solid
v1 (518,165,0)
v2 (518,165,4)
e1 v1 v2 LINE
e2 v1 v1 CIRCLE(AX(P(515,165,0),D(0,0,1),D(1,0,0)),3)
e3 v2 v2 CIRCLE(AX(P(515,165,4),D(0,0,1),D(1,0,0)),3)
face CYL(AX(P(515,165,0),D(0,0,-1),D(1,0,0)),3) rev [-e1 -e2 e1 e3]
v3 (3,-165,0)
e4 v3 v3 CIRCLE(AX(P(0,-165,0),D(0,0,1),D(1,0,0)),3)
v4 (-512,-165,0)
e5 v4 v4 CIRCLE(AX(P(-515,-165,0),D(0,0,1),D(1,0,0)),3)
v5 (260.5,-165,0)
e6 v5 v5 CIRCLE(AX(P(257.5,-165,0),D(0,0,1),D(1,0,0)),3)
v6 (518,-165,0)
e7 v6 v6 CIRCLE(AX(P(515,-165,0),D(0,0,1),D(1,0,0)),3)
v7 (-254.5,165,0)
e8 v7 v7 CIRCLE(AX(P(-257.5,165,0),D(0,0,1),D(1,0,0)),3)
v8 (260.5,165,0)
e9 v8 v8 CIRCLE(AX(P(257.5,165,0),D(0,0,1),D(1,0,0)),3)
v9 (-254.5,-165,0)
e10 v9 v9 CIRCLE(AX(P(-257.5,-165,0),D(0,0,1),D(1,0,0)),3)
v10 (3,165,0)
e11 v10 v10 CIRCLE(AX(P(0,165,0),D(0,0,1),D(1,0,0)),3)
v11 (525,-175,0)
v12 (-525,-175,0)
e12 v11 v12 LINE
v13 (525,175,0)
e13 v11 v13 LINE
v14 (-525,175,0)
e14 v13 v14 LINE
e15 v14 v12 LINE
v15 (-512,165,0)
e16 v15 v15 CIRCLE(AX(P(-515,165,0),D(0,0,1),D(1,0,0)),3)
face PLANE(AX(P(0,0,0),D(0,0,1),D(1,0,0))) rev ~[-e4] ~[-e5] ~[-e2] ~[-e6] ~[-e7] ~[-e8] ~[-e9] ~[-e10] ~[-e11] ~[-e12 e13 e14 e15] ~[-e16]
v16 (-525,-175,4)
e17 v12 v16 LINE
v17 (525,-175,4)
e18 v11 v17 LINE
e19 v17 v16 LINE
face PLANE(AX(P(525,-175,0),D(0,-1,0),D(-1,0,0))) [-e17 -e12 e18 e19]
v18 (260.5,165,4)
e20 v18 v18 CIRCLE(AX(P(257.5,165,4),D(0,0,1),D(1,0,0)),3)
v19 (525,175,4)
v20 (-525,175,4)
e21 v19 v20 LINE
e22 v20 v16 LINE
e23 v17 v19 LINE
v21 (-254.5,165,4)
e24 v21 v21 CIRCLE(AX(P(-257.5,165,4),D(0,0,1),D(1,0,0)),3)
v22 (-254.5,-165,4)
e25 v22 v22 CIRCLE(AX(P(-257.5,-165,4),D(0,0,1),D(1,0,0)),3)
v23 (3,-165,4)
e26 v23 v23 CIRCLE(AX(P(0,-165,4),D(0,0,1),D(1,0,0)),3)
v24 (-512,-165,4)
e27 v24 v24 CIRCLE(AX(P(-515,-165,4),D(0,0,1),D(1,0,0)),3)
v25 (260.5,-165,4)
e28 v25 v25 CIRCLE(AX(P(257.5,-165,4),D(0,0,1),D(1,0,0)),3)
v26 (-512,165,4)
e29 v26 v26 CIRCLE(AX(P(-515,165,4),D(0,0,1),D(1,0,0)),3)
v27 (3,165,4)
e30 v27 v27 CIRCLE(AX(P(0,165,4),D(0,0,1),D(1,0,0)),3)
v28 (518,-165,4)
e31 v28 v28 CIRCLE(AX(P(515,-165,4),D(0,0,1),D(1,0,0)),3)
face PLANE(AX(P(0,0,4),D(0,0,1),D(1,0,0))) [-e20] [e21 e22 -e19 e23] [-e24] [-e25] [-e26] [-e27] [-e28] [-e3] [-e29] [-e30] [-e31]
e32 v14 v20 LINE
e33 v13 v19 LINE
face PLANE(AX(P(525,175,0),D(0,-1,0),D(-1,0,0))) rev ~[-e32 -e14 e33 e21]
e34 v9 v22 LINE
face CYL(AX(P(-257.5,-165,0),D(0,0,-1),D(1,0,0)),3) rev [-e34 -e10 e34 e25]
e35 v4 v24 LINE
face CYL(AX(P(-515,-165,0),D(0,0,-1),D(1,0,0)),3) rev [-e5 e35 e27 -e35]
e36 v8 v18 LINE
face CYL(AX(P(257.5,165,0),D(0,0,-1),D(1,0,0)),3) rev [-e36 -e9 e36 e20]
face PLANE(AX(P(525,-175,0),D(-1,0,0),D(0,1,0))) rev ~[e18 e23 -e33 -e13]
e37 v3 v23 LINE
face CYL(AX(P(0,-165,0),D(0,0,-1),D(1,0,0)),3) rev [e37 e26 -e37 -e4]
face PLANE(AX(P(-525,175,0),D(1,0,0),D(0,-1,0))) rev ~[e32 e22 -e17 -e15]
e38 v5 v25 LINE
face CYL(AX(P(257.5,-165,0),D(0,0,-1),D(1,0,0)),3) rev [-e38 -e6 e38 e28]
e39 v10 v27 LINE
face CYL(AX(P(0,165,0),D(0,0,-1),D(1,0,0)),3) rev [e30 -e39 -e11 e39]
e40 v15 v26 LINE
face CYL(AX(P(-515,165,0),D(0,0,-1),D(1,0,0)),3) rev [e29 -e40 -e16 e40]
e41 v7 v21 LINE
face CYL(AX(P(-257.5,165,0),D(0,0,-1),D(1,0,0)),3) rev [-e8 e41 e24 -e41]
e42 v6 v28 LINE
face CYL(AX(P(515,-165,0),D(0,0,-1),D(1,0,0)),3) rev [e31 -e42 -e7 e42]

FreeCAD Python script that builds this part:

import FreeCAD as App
import Part
import Sketcher
from FreeCAD import Vector
Q = App.Units.Quantity


def add_polygon(sketch, points):
    """Adds a closed chain of lines whose ends are joined by coincident constraints."""
    first, n = sketch.GeometryCount, len(points)
    for a, b in zip(points, points[1:] + points[:1]):
        sketch.addGeometry(Part.LineSegment(App.Vector(*a, 0), App.Vector(*b, 0)), False)
    for i in range(n):
        sketch.addConstraint(Sketcher.Constraint("Coincident", first + i, 2, first + (i + 1) % n, 1))

doc = App.newDocument("Part")
body = doc.addObject("PartDesign::Body", "Body")

sketch1 = doc.addObject("Sketcher::SketchObject", "Sketch")
body.addObject(sketch1)
sketch1.AttachmentSupport = (doc.XY_Plane, [""])
sketch1.MapMode = "FlatFace"
add_polygon(sketch1, [(525, -175), (525, 175), (-525, 175), (-525, -175)])
sketch1.addGeometry(Part.Circle(Vector(-515, -165, 0), Vector(0, 0, 1), 3), False)
sketch1.addGeometry(Part.Circle(Vector(-257.5, -165, 0), Vector(0, 0, 1), 3), False)
sketch1.addGeometry(Part.Circle(Vector(0, -165, 0), Vector(0, 0, 1), 3), False)
sketch1.addGeometry(Part.Circle(Vector(257.5, -165, 0), Vector(0, 0, 1), 3), False)
sketch1.addGeometry(Part.Circle(Vector(515, -165, 0), Vector(0, 0, 1), 3), False)
sketch1.addGeometry(Part.Circle(Vector(-515, 165, 0), Vector(0, 0, 1), 3), False)
sketch1.addGeometry(Part.Circle(Vector(-257.5, 165, 0), Vector(0, 0, 1), 3), False)
sketch1.addGeometry(Part.Circle(Vector(0, 165, 0), Vector(0, 0, 1), 3), False)
sketch1.addGeometry(Part.Circle(Vector(257.5, 165, 0), Vector(0, 0, 1), 3), False)
sketch1.addGeometry(Part.Circle(Vector(515, 165, 0), Vector(0, 0, 1), 3), False)
sketch1.addConstraint(Sketcher.Constraint("Vertical", 0))
sketch1.addConstraint(Sketcher.Constraint("Horizontal", 1))
sketch1.addConstraint(Sketcher.Constraint("Vertical", 2))
sketch1.addConstraint(Sketcher.Constraint("Horizontal", 3))
sketch1.addConstraint(Sketcher.Constraint("Equal", 4, 5))
sketch1.addConstraint(Sketcher.Constraint("Equal", 5, 6))
sketch1.addConstraint(Sketcher.Constraint("Equal", 6, 7))
sketch1.addConstraint(Sketcher.Constraint("Equal", 7, 8))
sketch1.addConstraint(Sketcher.Constraint("Equal", 8, 9))
sketch1.addConstraint(Sketcher.Constraint("Equal", 9, 10))
sketch1.addConstraint(Sketcher.Constraint("Equal", 10, 11))
sketch1.addConstraint(Sketcher.Constraint("Equal", 11, 12))
sketch1.addConstraint(Sketcher.Constraint("Equal", 12, 13))
sketch1.addConstraint(Sketcher.Constraint("Symmetric", 8, 3, 9, 3, -1, 1))
sketch1.addConstraint(Sketcher.Constraint("Symmetric", 7, 3, 10, 3, -1, 1))
sketch1.addConstraint(Sketcher.Constraint("Symmetric", 6, 3, 11, 3, -1, 1))
sketch1.addConstraint(Sketcher.Constraint("Symmetric", 5, 3, 12, 3, -1, 1))
sketch1.addConstraint(Sketcher.Constraint("Symmetric", 4, 3, 13, 3, -1, 1))
sketch1.addConstraint(Sketcher.Constraint("Symmetric", 0, 2, 2, 2, -1, 1))
sketch1.addConstraint(Sketcher.Constraint("Symmetric", 5, 3, 7, 3, -2))
sketch1.addConstraint(Sketcher.Constraint("Symmetric", 4, 3, 8, 3, -2))
sketch1.addConstraint(Sketcher.Constraint("PointOnObject", 6, 3, -2))
sketch1.addConstraint(Sketcher.Constraint("Horizontal", 4, 3, 5, 3))
sketch1.addConstraint(Sketcher.Constraint("Horizontal", 5, 3, 6, 3))
sketch1.addConstraint(Sketcher.Constraint("Diameter", 4, Q("6 mm")))
sketch1.addConstraint(Sketcher.Constraint("DistanceX", 1, 2, 1, 1, Q("1050 mm")))
sketch1.addConstraint(Sketcher.Constraint("DistanceY", 0, 1, 0, 2, Q("350 mm")))
sketch1.addConstraint(Sketcher.Constraint("DistanceX", 4, 3, -1, 1, Q("515 mm")))
sketch1.addConstraint(Sketcher.Constraint("DistanceY", 4, 3, -1, 1, Q("165 mm")))
sketch1.addConstraint(Sketcher.Constraint("DistanceX", 5, 3, 7, 3, Q("515 mm")))
pad1 = doc.addObject("PartDesign::Pad", "Pad")
body.addObject(pad1)
pad1.Profile = sketch1
pad1.Length = 4

doc.recompute()
